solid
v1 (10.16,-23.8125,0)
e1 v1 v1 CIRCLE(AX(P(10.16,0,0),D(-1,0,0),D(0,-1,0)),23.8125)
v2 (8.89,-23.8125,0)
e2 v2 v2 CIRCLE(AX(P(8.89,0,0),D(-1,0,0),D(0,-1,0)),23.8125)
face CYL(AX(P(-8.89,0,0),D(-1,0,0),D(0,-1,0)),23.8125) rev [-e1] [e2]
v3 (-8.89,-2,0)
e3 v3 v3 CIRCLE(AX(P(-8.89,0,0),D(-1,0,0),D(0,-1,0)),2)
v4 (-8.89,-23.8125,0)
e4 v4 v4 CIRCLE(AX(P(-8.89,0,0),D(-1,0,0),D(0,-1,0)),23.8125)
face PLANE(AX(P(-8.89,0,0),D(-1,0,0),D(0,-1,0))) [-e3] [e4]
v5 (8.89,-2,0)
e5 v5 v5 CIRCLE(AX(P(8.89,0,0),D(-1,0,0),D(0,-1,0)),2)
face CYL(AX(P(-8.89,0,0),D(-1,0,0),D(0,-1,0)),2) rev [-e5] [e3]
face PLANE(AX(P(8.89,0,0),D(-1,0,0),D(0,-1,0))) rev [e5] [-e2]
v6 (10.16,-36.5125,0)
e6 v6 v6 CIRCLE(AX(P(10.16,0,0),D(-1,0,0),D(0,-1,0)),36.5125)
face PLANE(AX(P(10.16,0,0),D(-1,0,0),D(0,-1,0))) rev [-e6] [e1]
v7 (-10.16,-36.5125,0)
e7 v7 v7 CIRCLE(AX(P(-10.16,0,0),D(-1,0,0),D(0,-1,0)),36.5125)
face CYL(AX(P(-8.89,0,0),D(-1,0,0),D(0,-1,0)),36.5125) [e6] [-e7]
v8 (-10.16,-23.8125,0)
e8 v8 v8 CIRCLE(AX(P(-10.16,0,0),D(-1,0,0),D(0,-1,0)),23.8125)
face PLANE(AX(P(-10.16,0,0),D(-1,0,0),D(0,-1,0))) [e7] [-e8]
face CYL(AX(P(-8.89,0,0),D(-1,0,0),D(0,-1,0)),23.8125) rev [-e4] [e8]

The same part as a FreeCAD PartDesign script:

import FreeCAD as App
import Part
import Sketcher
from FreeCAD import Vector
Q = App.Units.Quantity

doc = App.newDocument("Part")
body = doc.addObject("PartDesign::Body", "Body")

sketch1 = body.newObject("Sketcher::SketchObject", "Sketch")
sketch1.AttachmentSupport = (doc.getObject("XY_Plane"), [""])
sketch1.MapMode = "FlatFace"
sketch1.addGeometry(Part.LineSegment(Vector(8.9, 2, 0), Vector(8.9, 23.8, 0)), False)
sketch1.addGeometry(Part.LineSegment(Vector(8.9, 23.8, 0), Vector(10.2, 23.8, 0)), False)
sketch1.addGeometry(Part.LineSegment(Vector(10.2, 23.8, 0), Vector(10.2, 36.5, 0)), False)
sketch1.addGeometry(Part.LineSegment(Vector(10.2, 36.5, 0), Vector(-10.2, 36.5, 0)), False)
sketch1.addGeometry(Part.LineSegment(Vector(-10.2, 36.5, 0), Vector(-10.2, 23.8, 0)), False)
sketch1.addGeometry(Part.LineSegment(Vector(-10.2, 23.8, 0), Vector(-8.9, 23.8, 0)), False)
sketch1.addGeometry(Part.LineSegment(Vector(-8.9, 23.8, 0), Vector(-8.9, 2, 0)), False)
sketch1.addGeometry(Part.LineSegment(Vector(-8.9, 2, 0), Vector(8.9, 2, 0)), False)
sketch1.addConstraint(Sketcher.Constraint("Coincident", 0, 2, 1, 1))
sketch1.addConstraint(Sketcher.Constraint("Coincident", 1, 2, 2, 1))
sketch1.addConstraint(Sketcher.Constraint("Coincident", 2, 2, 3, 1))
sketch1.addConstraint(Sketcher.Constraint("Coincident", 3, 2, 4, 1))
sketch1.addConstraint(Sketcher.Constraint("Coincident", 4, 2, 5, 1))
sketch1.addConstraint(Sketcher.Constraint("Coincident", 5, 2, 6, 1))
sketch1.addConstraint(Sketcher.Constraint("Coincident", 6, 2, 7, 1))
sketch1.addConstraint(Sketcher.Constraint("Coincident", 7, 2, 0, 1))
sketch1.addConstraint(Sketcher.Constraint("Vertical", 0))
sketch1.addConstraint(Sketcher.Constraint("Horizontal", 1))
sketch1.addConstraint(Sketcher.Constraint("Vertical", 2))
sketch1.addConstraint(Sketcher.Constraint("Horizontal", 3))
sketch1.addConstraint(Sketcher.Constraint("Vertical", 4))
sketch1.addConstraint(Sketcher.Constraint("Horizontal", 5))
sketch1.addConstraint(Sketcher.Constraint("Vertical", 6))
sketch1.addConstraint(Sketcher.Constraint("Horizontal", 7))
sketch1.addConstraint(Sketcher.Constraint("Symmetric", 1, 2, 4, 2, -2))
sketch1.addConstraint(Sketcher.Constraint("Equal", 1, 5))
sketch1.addConstraint(Sketcher.Constraint("DistanceX", 3, 2, 3, 1, Q("0.8 in")))
sketch1.addConstraint(Sketcher.Constraint("DistanceX", 7, 1, 7, 2, Q("0.7 in")))
sketch1.addConstraint(Sketcher.Constraint("DistanceY", 2, 1, 2, 2, Q("0.5 in")))
sketch1.addConstraint(Sketcher.Constraint("DistanceY", -1, 1, 0, 2, Q("0.9375 in")))
sketch1.addConstraint(Sketcher.Constraint("DistanceY", 0, 1, 0, 2, Q("21.8125 mm")))
revolution = body.newObject("PartDesign::Revolution", "Revolution")
revolution.Profile = sketch1
revolution.ReferenceAxis = (sketch1, ["H_Axis"])
revolution.Angle = 360

doc.recompute()
